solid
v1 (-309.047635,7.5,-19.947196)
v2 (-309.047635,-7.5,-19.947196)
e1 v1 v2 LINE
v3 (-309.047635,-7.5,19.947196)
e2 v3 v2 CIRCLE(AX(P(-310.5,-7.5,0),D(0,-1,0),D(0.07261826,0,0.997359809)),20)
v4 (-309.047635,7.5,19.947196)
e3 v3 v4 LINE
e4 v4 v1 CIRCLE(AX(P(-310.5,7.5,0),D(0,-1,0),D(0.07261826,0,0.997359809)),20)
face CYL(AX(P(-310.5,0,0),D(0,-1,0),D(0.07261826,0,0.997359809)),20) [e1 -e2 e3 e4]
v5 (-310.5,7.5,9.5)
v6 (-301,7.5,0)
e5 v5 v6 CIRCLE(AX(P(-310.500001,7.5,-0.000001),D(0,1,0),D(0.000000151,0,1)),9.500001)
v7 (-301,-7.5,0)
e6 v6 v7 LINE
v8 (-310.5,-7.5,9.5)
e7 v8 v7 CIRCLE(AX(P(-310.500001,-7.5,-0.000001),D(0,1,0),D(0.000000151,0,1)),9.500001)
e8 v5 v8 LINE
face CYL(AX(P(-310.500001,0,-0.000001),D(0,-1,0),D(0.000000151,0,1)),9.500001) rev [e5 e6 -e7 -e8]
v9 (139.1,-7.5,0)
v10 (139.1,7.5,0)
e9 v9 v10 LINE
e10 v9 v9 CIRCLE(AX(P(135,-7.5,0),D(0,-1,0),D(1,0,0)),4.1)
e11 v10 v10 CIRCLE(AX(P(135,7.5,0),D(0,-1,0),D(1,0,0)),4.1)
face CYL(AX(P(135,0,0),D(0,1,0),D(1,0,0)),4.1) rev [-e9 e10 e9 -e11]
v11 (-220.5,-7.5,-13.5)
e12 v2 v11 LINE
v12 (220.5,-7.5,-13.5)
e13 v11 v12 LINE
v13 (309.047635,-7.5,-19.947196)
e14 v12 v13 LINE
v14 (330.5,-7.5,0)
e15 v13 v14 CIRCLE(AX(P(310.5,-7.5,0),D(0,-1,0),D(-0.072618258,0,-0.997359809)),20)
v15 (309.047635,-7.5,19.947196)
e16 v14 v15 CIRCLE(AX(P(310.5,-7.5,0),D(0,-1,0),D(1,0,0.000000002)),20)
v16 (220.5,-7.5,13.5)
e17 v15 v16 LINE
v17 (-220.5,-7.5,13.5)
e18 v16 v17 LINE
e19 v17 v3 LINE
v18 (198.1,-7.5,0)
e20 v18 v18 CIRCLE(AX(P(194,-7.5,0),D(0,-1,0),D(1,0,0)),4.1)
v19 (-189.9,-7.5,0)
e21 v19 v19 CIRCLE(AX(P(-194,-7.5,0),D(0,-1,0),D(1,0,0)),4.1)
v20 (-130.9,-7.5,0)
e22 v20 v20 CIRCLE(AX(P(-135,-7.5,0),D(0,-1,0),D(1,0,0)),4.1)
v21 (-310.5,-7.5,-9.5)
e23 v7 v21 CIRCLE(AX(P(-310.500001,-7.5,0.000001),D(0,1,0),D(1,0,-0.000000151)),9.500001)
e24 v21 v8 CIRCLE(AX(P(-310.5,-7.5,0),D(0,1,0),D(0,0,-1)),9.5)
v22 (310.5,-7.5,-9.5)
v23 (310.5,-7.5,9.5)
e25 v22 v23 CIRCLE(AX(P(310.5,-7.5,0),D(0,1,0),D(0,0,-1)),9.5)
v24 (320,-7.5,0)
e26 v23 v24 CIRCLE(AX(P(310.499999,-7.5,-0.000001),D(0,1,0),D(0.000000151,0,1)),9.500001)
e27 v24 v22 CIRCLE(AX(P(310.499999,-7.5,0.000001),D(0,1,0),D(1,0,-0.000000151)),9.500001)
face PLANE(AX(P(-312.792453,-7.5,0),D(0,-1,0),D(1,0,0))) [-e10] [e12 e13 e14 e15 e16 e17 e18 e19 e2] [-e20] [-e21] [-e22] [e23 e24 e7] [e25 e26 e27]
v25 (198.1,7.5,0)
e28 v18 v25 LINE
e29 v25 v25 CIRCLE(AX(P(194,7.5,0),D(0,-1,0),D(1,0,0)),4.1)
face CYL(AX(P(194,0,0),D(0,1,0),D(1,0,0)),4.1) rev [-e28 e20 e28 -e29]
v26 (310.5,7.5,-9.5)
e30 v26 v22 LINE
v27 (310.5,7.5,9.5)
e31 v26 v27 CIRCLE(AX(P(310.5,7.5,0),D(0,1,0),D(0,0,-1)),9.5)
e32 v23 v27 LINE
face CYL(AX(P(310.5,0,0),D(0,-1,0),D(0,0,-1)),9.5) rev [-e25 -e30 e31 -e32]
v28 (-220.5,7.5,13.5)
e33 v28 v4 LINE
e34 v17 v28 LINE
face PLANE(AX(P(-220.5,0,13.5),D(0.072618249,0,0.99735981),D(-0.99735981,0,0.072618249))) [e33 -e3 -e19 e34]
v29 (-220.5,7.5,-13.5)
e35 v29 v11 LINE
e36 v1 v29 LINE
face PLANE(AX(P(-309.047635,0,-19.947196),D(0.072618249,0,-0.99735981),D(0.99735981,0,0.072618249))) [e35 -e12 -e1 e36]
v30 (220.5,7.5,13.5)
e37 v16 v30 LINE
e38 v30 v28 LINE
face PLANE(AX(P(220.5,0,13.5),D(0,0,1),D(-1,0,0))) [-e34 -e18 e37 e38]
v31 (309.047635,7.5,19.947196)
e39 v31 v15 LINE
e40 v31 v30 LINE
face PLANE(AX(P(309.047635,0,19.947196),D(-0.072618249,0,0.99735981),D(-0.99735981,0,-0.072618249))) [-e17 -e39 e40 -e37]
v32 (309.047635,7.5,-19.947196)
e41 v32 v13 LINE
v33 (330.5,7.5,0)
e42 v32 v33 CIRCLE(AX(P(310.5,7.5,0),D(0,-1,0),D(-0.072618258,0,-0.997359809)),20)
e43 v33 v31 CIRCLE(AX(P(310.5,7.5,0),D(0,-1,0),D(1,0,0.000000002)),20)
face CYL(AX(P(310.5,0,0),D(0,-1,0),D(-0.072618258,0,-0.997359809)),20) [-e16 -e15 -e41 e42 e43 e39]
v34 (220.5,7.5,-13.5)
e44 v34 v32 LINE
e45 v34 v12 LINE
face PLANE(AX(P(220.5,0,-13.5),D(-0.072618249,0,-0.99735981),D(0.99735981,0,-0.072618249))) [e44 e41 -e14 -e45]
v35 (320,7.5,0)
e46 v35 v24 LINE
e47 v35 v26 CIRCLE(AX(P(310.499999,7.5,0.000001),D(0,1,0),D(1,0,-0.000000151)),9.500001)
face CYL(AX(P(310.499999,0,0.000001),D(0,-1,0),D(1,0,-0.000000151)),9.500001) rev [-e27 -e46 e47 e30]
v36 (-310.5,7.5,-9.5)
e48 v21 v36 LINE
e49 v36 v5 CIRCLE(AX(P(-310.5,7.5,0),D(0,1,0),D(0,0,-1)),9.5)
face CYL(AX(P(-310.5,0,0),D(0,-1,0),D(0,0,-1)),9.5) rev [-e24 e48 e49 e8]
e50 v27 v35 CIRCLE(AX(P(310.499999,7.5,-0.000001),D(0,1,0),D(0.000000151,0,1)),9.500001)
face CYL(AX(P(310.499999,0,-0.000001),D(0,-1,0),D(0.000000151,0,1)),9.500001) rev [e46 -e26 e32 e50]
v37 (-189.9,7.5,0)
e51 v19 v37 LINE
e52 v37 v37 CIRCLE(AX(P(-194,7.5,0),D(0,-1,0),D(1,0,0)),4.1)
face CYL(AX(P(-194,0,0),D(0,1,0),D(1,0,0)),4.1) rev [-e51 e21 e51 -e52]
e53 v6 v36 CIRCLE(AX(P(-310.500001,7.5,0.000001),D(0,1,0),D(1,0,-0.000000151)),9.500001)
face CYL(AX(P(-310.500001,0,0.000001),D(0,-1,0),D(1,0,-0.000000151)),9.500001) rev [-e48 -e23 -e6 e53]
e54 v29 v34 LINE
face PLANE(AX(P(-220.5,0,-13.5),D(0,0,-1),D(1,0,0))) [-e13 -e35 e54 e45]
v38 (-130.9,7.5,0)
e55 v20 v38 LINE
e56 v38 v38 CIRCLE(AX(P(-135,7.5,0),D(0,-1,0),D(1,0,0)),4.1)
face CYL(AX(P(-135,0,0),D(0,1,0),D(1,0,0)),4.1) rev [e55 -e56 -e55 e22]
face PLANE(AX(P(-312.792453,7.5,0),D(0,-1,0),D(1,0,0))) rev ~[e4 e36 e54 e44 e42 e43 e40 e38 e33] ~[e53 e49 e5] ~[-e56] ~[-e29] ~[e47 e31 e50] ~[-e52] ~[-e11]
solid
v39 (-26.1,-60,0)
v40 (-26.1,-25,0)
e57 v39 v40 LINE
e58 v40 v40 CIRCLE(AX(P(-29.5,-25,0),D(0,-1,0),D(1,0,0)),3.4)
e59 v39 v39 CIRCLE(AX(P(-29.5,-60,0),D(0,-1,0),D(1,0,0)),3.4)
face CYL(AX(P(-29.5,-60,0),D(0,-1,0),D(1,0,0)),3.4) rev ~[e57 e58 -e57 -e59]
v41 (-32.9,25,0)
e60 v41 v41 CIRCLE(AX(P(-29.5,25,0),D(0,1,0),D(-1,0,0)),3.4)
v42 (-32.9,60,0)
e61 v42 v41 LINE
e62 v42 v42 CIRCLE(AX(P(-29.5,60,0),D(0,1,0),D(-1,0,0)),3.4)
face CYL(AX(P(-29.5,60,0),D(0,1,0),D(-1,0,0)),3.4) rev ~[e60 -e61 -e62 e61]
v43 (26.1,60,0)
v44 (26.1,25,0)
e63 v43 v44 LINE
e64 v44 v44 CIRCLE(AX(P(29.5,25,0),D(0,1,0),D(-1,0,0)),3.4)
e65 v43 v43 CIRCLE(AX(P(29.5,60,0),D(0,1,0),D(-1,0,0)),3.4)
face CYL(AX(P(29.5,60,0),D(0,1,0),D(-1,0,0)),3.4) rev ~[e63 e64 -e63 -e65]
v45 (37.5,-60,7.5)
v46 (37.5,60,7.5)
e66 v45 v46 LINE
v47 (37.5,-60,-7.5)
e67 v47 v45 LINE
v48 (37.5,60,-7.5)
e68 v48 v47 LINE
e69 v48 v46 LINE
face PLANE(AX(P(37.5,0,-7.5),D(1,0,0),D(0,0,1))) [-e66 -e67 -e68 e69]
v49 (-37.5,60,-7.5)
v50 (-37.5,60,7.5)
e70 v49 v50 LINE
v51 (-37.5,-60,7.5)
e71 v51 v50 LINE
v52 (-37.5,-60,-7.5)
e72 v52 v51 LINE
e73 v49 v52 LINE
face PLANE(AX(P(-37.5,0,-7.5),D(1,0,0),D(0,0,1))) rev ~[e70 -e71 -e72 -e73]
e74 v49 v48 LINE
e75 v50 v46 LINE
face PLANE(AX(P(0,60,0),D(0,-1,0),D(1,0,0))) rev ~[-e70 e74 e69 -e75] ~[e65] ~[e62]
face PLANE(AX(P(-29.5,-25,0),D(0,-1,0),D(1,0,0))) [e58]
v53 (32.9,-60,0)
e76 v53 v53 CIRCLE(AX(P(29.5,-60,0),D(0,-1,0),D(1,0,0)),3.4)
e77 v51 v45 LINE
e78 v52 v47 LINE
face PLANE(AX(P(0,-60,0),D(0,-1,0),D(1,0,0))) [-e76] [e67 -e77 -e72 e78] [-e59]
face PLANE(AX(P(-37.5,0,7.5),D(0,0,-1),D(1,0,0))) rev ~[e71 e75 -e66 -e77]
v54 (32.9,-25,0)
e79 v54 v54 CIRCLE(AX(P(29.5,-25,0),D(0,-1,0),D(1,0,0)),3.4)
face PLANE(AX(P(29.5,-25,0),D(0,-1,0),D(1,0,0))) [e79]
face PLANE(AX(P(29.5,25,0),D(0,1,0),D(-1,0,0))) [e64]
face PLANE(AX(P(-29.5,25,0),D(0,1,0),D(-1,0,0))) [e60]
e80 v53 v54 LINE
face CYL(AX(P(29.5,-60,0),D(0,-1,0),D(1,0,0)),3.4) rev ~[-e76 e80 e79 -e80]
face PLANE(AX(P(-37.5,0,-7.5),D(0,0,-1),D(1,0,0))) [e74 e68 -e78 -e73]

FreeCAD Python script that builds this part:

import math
import FreeCAD as App
import Part
import Sketcher
from FreeCAD import Vector


def add_polygon(sketch, points):
    """Adds a closed chain of lines whose ends are joined by coincident constraints."""
    first, n = sketch.GeometryCount, len(points)
    for a, b in zip(points, points[1:] + points[:1]):
        sketch.addGeometry(Part.LineSegment(App.Vector(*a, 0), App.Vector(*b, 0)), False)
    for i in range(n):
        sketch.addConstraint(Sketcher.Constraint("Coincident", first + i, 2, first + (i + 1) % n, 1))

doc = App.newDocument("Part")
body = doc.addObject("PartDesign::Body", "Body")

sketch1 = body.newObject("Sketcher::SketchObject", "Sketch")
sketch1.AttachmentSupport = (doc.getObject("XZ_Plane"), [""])
sketch1.MapMode = "FlatFace"
sketch1.addGeometry([
    Part.ArcOfCircle(Part.Circle(Vector(-310.5, 0, 0), Vector(0, 0, 1), 20), math.radians(86), math.radians(274)),
    Part.LineSegment(Vector(-309, -19.9, 0), Vector(-220.5, -13.5, 0)),
    Part.LineSegment(Vector(-220.5, -13.5, 0), Vector(220.5, -13.5, 0)),
    Part.LineSegment(Vector(220.5, -13.5, 0), Vector(309, -19.9, 0)),
    Part.ArcOfCircle(Part.Circle(Vector(310.5, 0, 0), Vector(0, 0, 1), 20), math.radians(-94), math.radians(0)),
    Part.ArcOfCircle(Part.Circle(Vector(310.5, 0, 0), Vector(0, 0, 1), 20), math.radians(0), math.radians(94)),
    Part.LineSegment(Vector(309, 19.9, 0), Vector(220.5, 13.5, 0)),
    Part.LineSegment(Vector(220.5, 13.5, 0), Vector(-220.5, 13.5, 0)),
    Part.LineSegment(Vector(-220.5, 13.5, 0), Vector(-309, 19.9, 0)),
    Part.ArcOfCircle(Part.Circle(Vector(310.5, 0, 0), Vector(0, 0, 1), 9.5), math.radians(0), math.radians(90)),
    Part.ArcOfCircle(Part.Circle(Vector(310.5, 0, 0), Vector(0, 0, 1), 9.5), math.radians(-90), math.radians(0)),
    Part.ArcOfCircle(Part.Circle(Vector(310.5, 0, 0), Vector(0, 0, 1), 9.5), math.radians(90), math.radians(270)),
    Part.ArcOfCircle(Part.Circle(Vector(-310.5, 0, 0), Vector(0, 0, 1), 9.5), math.radians(90), math.radians(270)),
    Part.ArcOfCircle(Part.Circle(Vector(-310.5, 0, 0), Vector(0, 0, 1), 9.5), math.radians(0), math.radians(90)),
    Part.ArcOfCircle(Part.Circle(Vector(-310.5, 0, 0), Vector(0, 0, 1), 9.5), math.radians(-90), math.radians(0)),
    Part.Circle(Vector(-194, 0, 0), Vector(0, 0, 1), 4.1),
    Part.Circle(Vector(-135, 0, 0), Vector(0, 0, 1), 4.1),
    Part.Circle(Vector(135, 0, 0), Vector(0, 0, 1), 4.1),
    Part.Circle(Vector(194, 0, 0), Vector(0, 0, 1), 4.1),
], False)
sketch1.addConstraint([
    Sketcher.Constraint("Tangent", 0, 2, 1, 1),
    Sketcher.Constraint("Coincident", 1, 2, 2, 1),
    Sketcher.Constraint("Coincident", 2, 2, 3, 1),
    Sketcher.Constraint("Tangent", 3, 2, 4, 1),
    Sketcher.Constraint("Tangent", 4, 2, 5, 1),
    Sketcher.Constraint("Tangent", 5, 2, 6, 1),
    Sketcher.Constraint("Coincident", 6, 2, 7, 1),
    Sketcher.Constraint("Coincident", 7, 2, 8, 1),
    Sketcher.Constraint("Tangent", 8, 2, 0, 1),
    Sketcher.Constraint("Tangent", 9, 1, 10, 2),
    Sketcher.Constraint("Tangent", 10, 1, 11, 2),
    Sketcher.Constraint("Tangent", 11, 1, 9, 2),
    Sketcher.Constraint("Tangent", 12, 1, 13, 2),
    Sketcher.Constraint("Tangent", 13, 1, 14, 2),
    Sketcher.Constraint("Tangent", 14, 1, 12, 2),
    Sketcher.Constraint("Horizontal", 2),
    Sketcher.Constraint("Horizontal", 7),
    Sketcher.Constraint("Coincident", 9, 3, 4, 3),
    Sketcher.Constraint("Coincident", 12, 3, 0, 3),
    Sketcher.Constraint("Equal", 0, 4),
    Sketcher.Constraint("Equal", 4, 5),
    Sketcher.Constraint("Equal", 11, 12),
    Sketcher.Constraint("Equal", 15, 16),
    Sketcher.Constraint("Equal", 16, 17),
    Sketcher.Constraint("Equal", 17, 18),
    Sketcher.Constraint("Symmetric", 0, 3, 4, 3, -1, 1),
    Sketcher.Constraint("Symmetric", 16, 3, 17, 3, -1, 1),
    Sketcher.Constraint("Symmetric", 15, 3, 18, 3, -1, 1),
    Sketcher.Constraint("Symmetric", 1, 2, 6, 2, -1, 1),
    Sketcher.Constraint("Symmetric", 0, 2, 3, 2, -2),
    Sketcher.Constraint("PointOnObject", 15, 3, -1),
    Sketcher.Constraint("PointOnObject", 16, 3, -1),
    Sketcher.Constraint("PointOnObject", 4, 2, -1),
    Sketcher.Constraint("PointOnObject", 9, 1, -1),
    Sketcher.Constraint("PointOnObject", 13, 1, -1),
    Sketcher.Constraint("Parallel", 3, 8),
    Sketcher.Constraint("Vertical", 11, 3, 10, 1),
    Sketcher.Constraint("Vertical", 10, 1, 11, 1),
    Sketcher.Constraint("Vertical", 14, 3, 12, 1),
    Sketcher.Constraint("Vertical", 12, 1, 14, 1),
    Sketcher.Constraint("Radius", 0, 20.0),
    Sketcher.Constraint("Diameter", 15, 8.2),
    Sketcher.Constraint("Radius", 9, 9.500001),
    Sketcher.Constraint("DistanceX", 2, 1, 2, 2, 441.0),
    Sketcher.Constraint("DistanceX", 15, 3, -1, 1, 194.0),
    Sketcher.Constraint("DistanceX", 16, 3, -1, 1, 135.0),
    Sketcher.Constraint("DistanceX", -1, 1, 9, 1, 320.0),
    Sketcher.Constraint("DistanceY", 2, 2, 6, 2, 27.0),
])
pad1 = body.newObject("PartDesign::Pad", "Pad")
pad1.Profile = sketch1
pad1.Length = 15
pad1.Midplane = True
body2 = doc.addObject("PartDesign::Body", "Body001")

sketch2 = body2.newObject("Sketcher::SketchObject", "Sketch001")
sketch2.AttachmentSupport = (doc.getObject("XZ_Plane001"), [""])
sketch2.MapMode = "FlatFace"
add_polygon(sketch2, [(-38, 8), (-38, -8), (38, -8), (38, 8)])
sketch2.addConstraint([
    Sketcher.Constraint("Vertical", 0),
    Sketcher.Constraint("Horizontal", 1),
    Sketcher.Constraint("Vertical", 2),
    Sketcher.Constraint("Horizontal", 3),
    Sketcher.Constraint("Symmetric", 0, 2, 2, 2, -1, 1),
    Sketcher.Constraint("DistanceX", 1, 1, 1, 2, 75.0),
    Sketcher.Constraint("DistanceY", 0, 2, 0, 1, 15.0),
])
pad2 = body2.newObject("PartDesign::Pad", "Pad001")
pad2.Profile = sketch2
pad2.Length = 120
pad2.Midplane = True

sketch3 = body2.newObject("Sketcher::SketchObject", "Sketch002")
sketch3.AttachmentSupport = (doc.getObject("XZ_Plane001"), [""])
sketch3.MapMode = "FlatFace"
sketch3.AttachmentOffset = App.Placement(Vector(0, 0, 60), App.Rotation())
sketch3.addGeometry([
    Part.Circle(Vector(-29.5, 0, 0), Vector(0, 0, 1), 3.4),
    Part.Circle(Vector(29.5, 0, 0), Vector(0, 0, 1), 3.4),
], False)
sketch3.addConstraint([
    Sketcher.Constraint("Equal", 0, 1),
    Sketcher.Constraint("Symmetric", 0, 3, 1, 3, -1, 1),
    Sketcher.Constraint("PointOnObject", 0, 3, -1),
    Sketcher.Constraint("Diameter", 0, 6.8),
    Sketcher.Constraint("DistanceX", 0, 3, 1, 3, 59.0),
])
pocket1 = body2.newObject("PartDesign::Pocket", "Pocket")
pocket1.Profile = sketch3
pocket1.Length = 35

sketch4 = body2.newObject("Sketcher::SketchObject", "Sketch003")
sketch4.AttachmentSupport = (doc.getObject("XZ_Plane001"), [""])
sketch4.MapMode = "FlatFace"
sketch4.AttachmentOffset = App.Placement(Vector(0, 0, -60), App.Rotation())
sketch4.addGeometry([
    Part.Circle(Vector(29.5, 0, 0), Vector(0, 0, 1), 3.4),
    Part.Circle(Vector(-29.5, 0, 0), Vector(0, 0, 1), 3.4),
], False)
sketch4.addConstraint([
    Sketcher.Constraint("Equal", 0, 1),
    Sketcher.Constraint("Symmetric", 0, 3, 1, 3, -1, 1),
    Sketcher.Constraint("PointOnObject", 0, 3, -1),
    Sketcher.Constraint("Diameter", 0, 6.8),
    Sketcher.Constraint("DistanceX", 1, 3, 0, 3, 59.0),
])
pocket2 = body2.newObject("PartDesign::Pocket", "Pocket001")
pocket2.Profile = sketch4
pocket2.Length = 35
pocket2.Reversed = True

doc.recompute()
